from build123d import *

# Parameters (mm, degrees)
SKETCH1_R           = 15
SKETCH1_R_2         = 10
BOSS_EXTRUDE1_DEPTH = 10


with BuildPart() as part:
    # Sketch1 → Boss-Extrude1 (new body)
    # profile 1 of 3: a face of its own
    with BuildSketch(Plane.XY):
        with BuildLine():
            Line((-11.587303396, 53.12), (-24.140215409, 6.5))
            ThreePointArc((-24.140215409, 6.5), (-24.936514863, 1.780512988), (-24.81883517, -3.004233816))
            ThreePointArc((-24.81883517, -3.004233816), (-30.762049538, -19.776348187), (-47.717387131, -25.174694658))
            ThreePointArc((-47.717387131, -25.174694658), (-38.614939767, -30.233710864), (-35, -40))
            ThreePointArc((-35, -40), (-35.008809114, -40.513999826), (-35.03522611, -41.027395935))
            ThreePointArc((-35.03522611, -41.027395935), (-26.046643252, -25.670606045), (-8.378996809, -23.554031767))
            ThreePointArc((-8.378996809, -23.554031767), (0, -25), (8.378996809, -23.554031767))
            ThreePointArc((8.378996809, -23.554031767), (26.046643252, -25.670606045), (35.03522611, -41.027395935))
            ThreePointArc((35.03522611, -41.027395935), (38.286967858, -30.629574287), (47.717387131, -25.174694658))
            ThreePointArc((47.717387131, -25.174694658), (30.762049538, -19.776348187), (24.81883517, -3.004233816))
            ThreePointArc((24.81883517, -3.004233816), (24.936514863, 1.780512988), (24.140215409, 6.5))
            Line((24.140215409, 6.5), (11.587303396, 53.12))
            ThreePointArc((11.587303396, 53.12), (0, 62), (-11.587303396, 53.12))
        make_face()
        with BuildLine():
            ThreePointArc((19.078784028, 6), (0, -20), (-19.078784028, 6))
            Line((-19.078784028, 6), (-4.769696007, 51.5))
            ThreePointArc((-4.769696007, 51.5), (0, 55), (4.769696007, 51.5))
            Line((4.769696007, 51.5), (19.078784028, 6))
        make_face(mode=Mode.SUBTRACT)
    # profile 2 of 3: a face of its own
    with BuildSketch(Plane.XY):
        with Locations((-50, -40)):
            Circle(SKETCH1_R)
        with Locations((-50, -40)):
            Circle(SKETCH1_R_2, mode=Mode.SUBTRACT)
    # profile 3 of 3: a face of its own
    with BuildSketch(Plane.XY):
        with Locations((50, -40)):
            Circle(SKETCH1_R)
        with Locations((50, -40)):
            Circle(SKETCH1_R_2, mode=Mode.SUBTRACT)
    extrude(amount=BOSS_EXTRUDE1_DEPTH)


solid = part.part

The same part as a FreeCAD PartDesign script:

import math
import FreeCAD as App
import Part
import Sketcher

doc = App.newDocument("Part")
body = doc.addObject("PartDesign::Body", "Body")

sketch1 = body.newObject("Sketcher::SketchObject", "Sketch")
sketch1.AttachmentSupport = (doc.getObject("XY_Plane"), [""])
sketch1.MapMode = "FlatFace"
sketch1.addGeometry([
    Part.LineSegment(App.Vector(-12, 53, 0), App.Vector(-24, 6, 0)),
    Part.ArcOfCircle(Part.Circle(App.Vector(0, 0, 0), App.Vector(0, 0, 1), 25), math.radians(165), math.radians(187)),
    Part.ArcOfCircle(Part.Circle(App.Vector(-45, -5, 0), App.Vector(0, 0, 1), 20), math.radians(-99), math.radians(7)),
    Part.ArcOfCircle(Part.Circle(App.Vector(-50, -40, 0), App.Vector(0, 0, 1), 15), math.radians(81), math.radians(356)),
    Part.ArcOfCircle(Part.Circle(App.Vector(-15, -42, 0), App.Vector(0, 0, 1), 20), math.radians(70), math.radians(176)),
    Part.ArcOfCircle(Part.Circle(App.Vector(0, 0, 0), App.Vector(0, 0, 1), 25), math.radians(-110), math.radians(-70)),
    Part.ArcOfCircle(Part.Circle(App.Vector(15, -42, 0), App.Vector(0, 0, 1), 20), math.radians(4), math.radians(110)),
    Part.ArcOfCircle(Part.Circle(App.Vector(50, -40, 0), App.Vector(0, 0, 1), 15), math.radians(-176), math.radians(99)),
    Part.ArcOfCircle(Part.Circle(App.Vector(45, -5, 0), App.Vector(0, 0, 1), 20), math.radians(173), math.radians(279)),
    Part.ArcOfCircle(Part.Circle(App.Vector(0, 0, 0), App.Vector(0, 0, 1), 25), math.radians(-7), math.radians(15)),
    Part.LineSegment(App.Vector(24, 6, 0), App.Vector(12, 53, 0)),
    Part.ArcOfCircle(Part.Circle(App.Vector(0, 50, 0), App.Vector(0, 0, 1), 12), math.radians(15), math.radians(165)),
    Part.LineSegment(App.Vector(5, 52, 0), App.Vector(19, 6, 0)),
    Part.ArcOfCircle(Part.Circle(App.Vector(0, 0, 0), App.Vector(0, 0, 1), 20), math.radians(163), math.radians(377)),
    Part.LineSegment(App.Vector(-19, 6, 0), App.Vector(-5, 52, 0)),
    Part.ArcOfCircle(Part.Circle(App.Vector(0, 50, 0), App.Vector(0, 0, 1), 5), math.radians(17), math.radians(163)),
    Part.Circle(App.Vector(-50, -40, 0), App.Vector(0, 0, 1), 10),
    Part.Circle(App.Vector(50, -40, 0), App.Vector(0, 0, 1), 10),
], False)
sketch1.addConstraint([
    Sketcher.Constraint("Tangent", 0, 2, 1, 1),
    Sketcher.Constraint("Tangent", 1, 2, 2, 2),
    Sketcher.Constraint("Tangent", 2, 1, 3, 1),
    Sketcher.Constraint("Tangent", 3, 2, 4, 2),
    Sketcher.Constraint("Tangent", 4, 1, 5, 1),
    Sketcher.Constraint("Tangent", 5, 2, 6, 2),
    Sketcher.Constraint("Tangent", 6, 1, 7, 1),
    Sketcher.Constraint("Tangent", 7, 2, 8, 2),
    Sketcher.Constraint("Tangent", 8, 1, 9, 1),
    Sketcher.Constraint("Tangent", 9, 2, 10, 1),
    Sketcher.Constraint("Tangent", 10, 2, 11, 1),
    Sketcher.Constraint("Tangent", 11, 2, 0, 1),
    Sketcher.Constraint("Tangent", 12, 2, 13, 2),
    Sketcher.Constraint("Tangent", 13, 1, 14, 1),
    Sketcher.Constraint("Tangent", 14, 2, 15, 2),
    Sketcher.Constraint("Tangent", 15, 1, 12, 1),
    Sketcher.Constraint("Coincident", 1, 3, -1, 1),
    Sketcher.Constraint("Coincident", 5, 3, -1, 1),
    Sketcher.Constraint("Coincident", 9, 3, -1, 1),
    Sketcher.Constraint("Coincident", 13, 3, -1, 1),
    Sketcher.Constraint("Coincident", 15, 3, 11, 3),
    Sketcher.Constraint("Coincident", 16, 3, 3, 3),
    Sketcher.Constraint("Coincident", 17, 3, 7, 3),
    Sketcher.Constraint("Equal", 2, 4),
    Sketcher.Constraint("Equal", 1, 5),
    Sketcher.Constraint("Equal", 4, 6),
    Sketcher.Constraint("Equal", 3, 7),
    Sketcher.Constraint("Equal", 6, 8),
    Sketcher.Constraint("Equal", 5, 9),
    Sketcher.Constraint("Equal", 8, 13),
    Sketcher.Constraint("Equal", 16, 17),
    Sketcher.Constraint("Symmetric", 3, 3, 7, 3, -2),
    Sketcher.Constraint("PointOnObject", 11, 3, -2),
    Sketcher.Constraint("Diameter", 16, 20.0),
    Sketcher.Constraint("Radius", 1, 25.0),
    Sketcher.Constraint("Radius", 2, 20.0),
    Sketcher.Constraint("Radius", 3, 15.0),
    Sketcher.Constraint("Radius", 11, 12.0),
    Sketcher.Constraint("Radius", 15, 5.0),
    Sketcher.Constraint("DistanceX", 3, 3, -1, 1, 50.0),
    Sketcher.Constraint("DistanceY", 3, 3, -1, 1, 40.0),
    Sketcher.Constraint("DistanceY", -1, 1, 11, 3, 50.0),
])
pad1 = body.newObject("PartDesign::Pad", "Pad")
pad1.Profile = sketch1
pad1.Length = 10

doc.recompute()
